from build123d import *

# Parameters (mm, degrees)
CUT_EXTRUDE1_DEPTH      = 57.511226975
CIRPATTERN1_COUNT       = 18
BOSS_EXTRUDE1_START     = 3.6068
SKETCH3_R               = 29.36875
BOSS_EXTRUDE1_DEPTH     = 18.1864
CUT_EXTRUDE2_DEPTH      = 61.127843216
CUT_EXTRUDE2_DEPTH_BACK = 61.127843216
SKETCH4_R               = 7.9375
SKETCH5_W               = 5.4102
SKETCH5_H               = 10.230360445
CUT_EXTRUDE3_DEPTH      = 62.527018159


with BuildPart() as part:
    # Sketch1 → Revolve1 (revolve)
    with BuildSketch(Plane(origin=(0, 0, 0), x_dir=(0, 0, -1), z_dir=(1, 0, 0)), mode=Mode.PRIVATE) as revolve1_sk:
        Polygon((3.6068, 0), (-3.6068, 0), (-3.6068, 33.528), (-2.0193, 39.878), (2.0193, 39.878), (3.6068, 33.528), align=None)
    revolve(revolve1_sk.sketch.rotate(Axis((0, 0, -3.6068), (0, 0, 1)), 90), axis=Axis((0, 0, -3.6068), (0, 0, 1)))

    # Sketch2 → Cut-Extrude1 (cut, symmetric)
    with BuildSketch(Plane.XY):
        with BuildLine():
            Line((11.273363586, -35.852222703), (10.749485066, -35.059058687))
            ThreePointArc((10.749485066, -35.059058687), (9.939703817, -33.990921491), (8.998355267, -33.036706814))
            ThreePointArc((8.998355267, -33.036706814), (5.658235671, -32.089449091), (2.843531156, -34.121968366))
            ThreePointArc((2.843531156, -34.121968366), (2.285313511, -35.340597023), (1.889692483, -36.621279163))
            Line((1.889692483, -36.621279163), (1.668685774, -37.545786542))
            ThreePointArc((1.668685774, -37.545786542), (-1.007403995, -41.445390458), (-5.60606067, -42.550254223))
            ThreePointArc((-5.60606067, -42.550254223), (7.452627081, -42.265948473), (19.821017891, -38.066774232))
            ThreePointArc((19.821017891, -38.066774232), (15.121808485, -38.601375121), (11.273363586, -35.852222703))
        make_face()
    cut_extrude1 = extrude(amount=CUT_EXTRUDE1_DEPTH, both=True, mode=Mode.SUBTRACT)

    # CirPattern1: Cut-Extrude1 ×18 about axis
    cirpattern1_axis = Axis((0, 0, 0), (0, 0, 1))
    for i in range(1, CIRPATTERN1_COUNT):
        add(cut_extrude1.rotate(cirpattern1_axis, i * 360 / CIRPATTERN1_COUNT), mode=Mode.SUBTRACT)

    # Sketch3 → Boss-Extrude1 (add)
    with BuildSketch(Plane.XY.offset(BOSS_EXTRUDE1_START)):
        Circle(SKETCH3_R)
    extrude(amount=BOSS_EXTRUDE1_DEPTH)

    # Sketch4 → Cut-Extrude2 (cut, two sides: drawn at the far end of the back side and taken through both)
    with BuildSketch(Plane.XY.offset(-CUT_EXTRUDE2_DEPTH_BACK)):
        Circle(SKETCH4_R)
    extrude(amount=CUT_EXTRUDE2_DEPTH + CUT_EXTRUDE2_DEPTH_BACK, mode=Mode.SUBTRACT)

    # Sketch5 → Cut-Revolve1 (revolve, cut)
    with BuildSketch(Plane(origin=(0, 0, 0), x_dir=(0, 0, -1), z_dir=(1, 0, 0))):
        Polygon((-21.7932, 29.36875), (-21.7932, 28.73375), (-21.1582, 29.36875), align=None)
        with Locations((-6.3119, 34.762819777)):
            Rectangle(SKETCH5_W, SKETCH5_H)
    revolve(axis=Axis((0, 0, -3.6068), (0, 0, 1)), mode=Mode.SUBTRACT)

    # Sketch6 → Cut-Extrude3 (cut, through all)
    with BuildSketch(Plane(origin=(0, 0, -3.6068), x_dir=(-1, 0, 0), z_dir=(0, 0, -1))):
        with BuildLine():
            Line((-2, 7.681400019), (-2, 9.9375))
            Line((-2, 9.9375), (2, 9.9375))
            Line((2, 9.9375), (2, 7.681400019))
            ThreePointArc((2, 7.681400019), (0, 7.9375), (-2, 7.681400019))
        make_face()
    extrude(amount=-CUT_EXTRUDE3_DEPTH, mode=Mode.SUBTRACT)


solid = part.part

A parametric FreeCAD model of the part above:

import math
import FreeCAD as App
import Part
import Sketcher

V = App.Vector
Q = App.Units.Quantity

doc = App.newDocument("Part")
params = doc.addObject("Spreadsheet::Sheet", "Params")
for row, (alias, value) in enumerate([
    ("sketch1_width", "1.32 in"),
    ("sketch1_height", "0.284 in"),
    ("sketch1_height2", "0.159 in"),
    ("revolution_angle", "360 deg"),
    ("pocket1_length", "115.022454 mm"),
    ("sketch3_diameter", "2.3125 in"),
    ("pad1_length", "0.716 in"),
    ("sketch4_diameter", "0.625 in"),
    ("sketch5_width", "0.025 in"),
    ("sketch5_height", "0.213 in"),
    ("groove_angle", "360 deg"),
    ("sketch6_radius", "0.3125 in"),
], start=1):
    params.set(f"A{row}", alias)
    params.set(f"B{row}", "=" + value)
    params.setAlias(f"B{row}", alias)

body = doc.addObject("PartDesign::Body", "Body")

# Sketch on YZ plane
sketch1 = doc.addObject("Sketcher::SketchObject", "Sketch")
body.addObject(sketch1)
sketch1.AttachmentSupport = (doc.YZ_Plane, [""])
sketch1.MapMode = "FlatFace"
sketch1.addGeometry(Part.LineSegment(V(0, 3.6, 0), V(0, -3.6, 0)), False)
sketch1.addGeometry(Part.LineSegment(V(0, -3.6, 0), V(33.5, -3.6, 0)), False)
sketch1.addGeometry(Part.LineSegment(V(33.5, -3.6, 0), V(39.9, -2, 0)), False)
sketch1.addGeometry(Part.LineSegment(V(39.9, -2, 0), V(39.9, 2, 0)), False)
sketch1.addGeometry(Part.LineSegment(V(39.9, 2, 0), V(33.5, 3.6, 0)), False)
sketch1.addGeometry(Part.LineSegment(V(33.5, 3.6, 0), V(0, 3.6, 0)), False)
sketch1.addConstraint(Sketcher.Constraint("Coincident", 0, 2, 1, 1))
sketch1.addConstraint(Sketcher.Constraint("Coincident", 1, 2, 2, 1))
sketch1.addConstraint(Sketcher.Constraint("Coincident", 2, 2, 3, 1))
sketch1.addConstraint(Sketcher.Constraint("Coincident", 3, 2, 4, 1))
sketch1.addConstraint(Sketcher.Constraint("Coincident", 4, 2, 5, 1))
sketch1.addConstraint(Sketcher.Constraint("Coincident", 5, 2, 0, 1))
sketch1.addConstraint(Sketcher.Constraint("Vertical", 0))
sketch1.addConstraint(Sketcher.Constraint("Horizontal", 1))
sketch1.addConstraint(Sketcher.Constraint("Vertical", 3))
sketch1.addConstraint(Sketcher.Constraint("Horizontal", 5))
sketch1.addConstraint(Sketcher.Constraint("Symmetric", 0, 2, 5, 2, -1, 1))
sketch1.addConstraint(Sketcher.Constraint("Vertical", 1, 2, 4, 2))
sketch1.addConstraint(Sketcher.Constraint("Equal", 2, 4))
sketch1.addConstraint(Sketcher.Constraint("DistanceX", 1, 1, 1, 2, Q("1.32 in")))
sketch1.addConstraint(Sketcher.Constraint("DistanceY", 0, 2, 0, 1, Q("0.284 in")))
sketch1.addConstraint(Sketcher.Constraint("DistanceY", 3, 1, 3, 2, Q("0.159 in")))
sketch1.addConstraint(Sketcher.Constraint("DistanceX", -1, 1, 2, 2, Q("1.57 in")))
sketch1.setExpression("Constraints[13]", "Params.sketch1_width")
sketch1.setExpression("Constraints[14]", "Params.sketch1_height")
sketch1.setExpression("Constraints[15]", "Params.sketch1_height2")
revolution = doc.addObject("PartDesign::Revolution", "Revolution")
body.addObject(revolution)
revolution.Profile = sketch1
revolution.ReferenceAxis = (sketch1, ["V_Axis"])
revolution.setExpression("Angle", "Params.revolution_angle")

# Sketch on XY plane
sketch2 = doc.addObject("Sketcher::SketchObject", "Sketch001")
body.addObject(sketch2)
sketch2.AttachmentSupport = (doc.XY_Plane, [""])
sketch2.MapMode = "FlatFace"
sketch2.addGeometry(Part.LineSegment(V(11.3, -35.9, 0), V(10.7, -35.1, 0)), False)
sketch2.addGeometry(Part.ArcOfCircle(Part.Circle(V(2.1, -40.7, 0), V(0, 0, 1), 10.3), math.radians(33.44), math.radians(48.33)), False)
sketch2.addGeometry(Part.ArcOfCircle(Part.Circle(V(6.3, -36, 0), V(0, 0, 1), 4), math.radians(48), math.radians(152)), False)
sketch2.addGeometry(Part.ArcOfCircle(Part.Circle(V(11.9, -39, 0), V(0, 0, 1), 10.3), math.radians(151.67), math.radians(166.56)), False)
sketch2.addGeometry(Part.LineSegment(V(1.9, -36.6, 0), V(1.7, -37.5, 0)), False)
sketch2.addGeometry(Part.ArcOfCircle(Part.Circle(V(-4.7, -36, 0), V(0, 0, 1), 6.6), math.radians(-98), math.radians(-13)), False)
sketch2.addGeometry(Part.ArcOfCircle(Part.Circle(V(0, 0, 0), V(0, 0, 1), 42.9), math.radians(-98), math.radians(-62)), False)
sketch2.addGeometry(Part.ArcOfCircle(Part.Circle(V(16.8, -32.2, 0), V(0, 0, 1), 6.6), math.radians(-147), math.radians(-62)), False)
sketch2.addConstraint(Sketcher.Constraint("Tangent", 0, 2, 1, 1))
sketch2.addConstraint(Sketcher.Constraint("Tangent", 1, 2, 2, 1))
sketch2.addConstraint(Sketcher.Constraint("Tangent", 2, 2, 3, 1))
sketch2.addConstraint(Sketcher.Constraint("Tangent", 3, 2, 4, 1))
sketch2.addConstraint(Sketcher.Constraint("Tangent", 4, 2, 5, 2))
sketch2.addConstraint(Sketcher.Constraint("Tangent", 5, 1, 6, 1))
sketch2.addConstraint(Sketcher.Constraint("Tangent", 6, 2, 7, 2))
sketch2.addConstraint(Sketcher.Constraint("Tangent", 7, 1, 0, 1))
sketch2.addConstraint(Sketcher.Constraint("Coincident", 6, 3, -1, 1))
sketch2.addConstraint(Sketcher.Constraint("Equal", 1, 3))
sketch2.addConstraint(Sketcher.Constraint("Equal", 5, 7))
sketch2.addConstraint(Sketcher.Constraint("Horizontal", 2, 3, 5, 3))
sketch2.addConstraint(Sketcher.Constraint("Equal", 0, 4))
sketch2.addConstraint(Sketcher.Constraint("DistanceX", -1, 1, 2, 3, Q("0.25 in")))
sketch2.addConstraint(Sketcher.Constraint("Radius", 1, Q("10.323552 mm")))
sketch2.addConstraint(Sketcher.Constraint("Radius", 2, Q("3.983712 mm")))
sketch2.addConstraint(Sketcher.Constraint("Radius", 6, Q("42.917969 mm")))
sketch2.addConstraint(Sketcher.Constraint("DistanceY", 1, 3, 0, 2, Q("0.224 in")))
sketch2.addConstraint(Sketcher.Constraint("DistanceX", 5, 3, -1, 1, Q("0.1868 in")))
sketch2.addConstraint(Sketcher.Constraint("Radius", 5, Q("6.594112 mm")))
sketch2.addConstraint(Sketcher.Constraint("DistanceX", -1, 1, 1, 3, Q("2.135301 mm")))
pocket1 = doc.addObject("PartDesign::Pocket", "Pocket")
body.addObject(pocket1)
pocket1.Profile = sketch2
pocket1.setExpression("Length", "Params.pocket1_length")
pocket1.Midplane = True
doc.recompute()

polarpattern = doc.addObject("PartDesign::PolarPattern", "PolarPattern")
body.addObject(polarpattern)
polarpattern.Originals = [pocket1]
polarpattern.Axis = (doc.Z_Axis, [""])
polarpattern.Angle = 360
polarpattern.Occurrences = 18
body.Tip = polarpattern

# Sketch on XY plane
sketch3 = doc.addObject("Sketcher::SketchObject", "Sketch002")
body.addObject(sketch3)
sketch3.AttachmentSupport = (doc.XY_Plane, [""])
sketch3.MapMode = "FlatFace"
sketch3.AttachmentOffset = App.Placement(V(0, 0, 0.142 * 25.4), App.Rotation())
sketch3.addGeometry(Part.Circle(V(0, 0, 0), V(0, 0, 1), 29), False)
sketch3.addConstraint(Sketcher.Constraint("Coincident", 0, 3, -1, 1))
sketch3.addConstraint(Sketcher.Constraint("Diameter", 0, Q("2.3125 in")))
sketch3.setExpression("Constraints[1]", "Params.sketch3_diameter")
pad1 = doc.addObject("PartDesign::Pad", "Pad")
body.addObject(pad1)
pad1.Profile = sketch3
pad1.setExpression("Length", "Params.pad1_length")

# Sketch on XY plane
sketch4 = doc.addObject("Sketcher::SketchObject", "Sketch003")
body.addObject(sketch4)
sketch4.AttachmentSupport = (doc.XY_Plane, [""])
sketch4.MapMode = "FlatFace"
sketch4.addGeometry(Part.Circle(V(0, 0, 0), V(0, 0, 1), 8), False)
sketch4.addConstraint(Sketcher.Constraint("Coincident", 0, 3, -1, 1))
sketch4.addConstraint(Sketcher.Constraint("Diameter", 0, Q("0.625 in")))
sketch4.setExpression("Constraints[1]", "Params.sketch4_diameter")
pocket2 = doc.addObject("PartDesign::Pocket", "Pocket001")
body.addObject(pocket2)
pocket2.Profile = sketch4
pocket2.Type = "ThroughAll"
pocket2.Midplane = True

# Sketch on YZ plane
sketch5 = doc.addObject("Sketcher::SketchObject", "Sketch004")
body.addObject(sketch5)
sketch5.AttachmentSupport = (doc.YZ_Plane, [""])
sketch5.MapMode = "FlatFace"
sketch5.addGeometry(Part.LineSegment(V(29.4, 21.8, 0), V(28.7, 21.8, 0)), False)
sketch5.addGeometry(Part.LineSegment(V(28.7, 21.8, 0), V(29.4, 21.2, 0)), False)
sketch5.addGeometry(Part.LineSegment(V(29.4, 21.2, 0), V(29.4, 21.8, 0)), False)
sketch5.addGeometry(Part.LineSegment(V(39.9, 9, 0), V(29.6, 9, 0)), False)
sketch5.addGeometry(Part.LineSegment(V(29.6, 9, 0), V(29.6, 3.6, 0)), False)
sketch5.addGeometry(Part.LineSegment(V(29.6, 3.6, 0), V(39.9, 3.6, 0)), False)
sketch5.addGeometry(Part.LineSegment(V(39.9, 3.6, 0), V(39.9, 9, 0)), False)
sketch5.addConstraint(Sketcher.Constraint("Coincident", 0, 2, 1, 1))
sketch5.addConstraint(Sketcher.Constraint("Coincident", 1, 2, 2, 1))
sketch5.addConstraint(Sketcher.Constraint("Coincident", 2, 2, 0, 1))
sketch5.addConstraint(Sketcher.Constraint("Coincident", 3, 2, 4, 1))
sketch5.addConstraint(Sketcher.Constraint("Coincident", 4, 2, 5, 1))
sketch5.addConstraint(Sketcher.Constraint("Coincident", 5, 2, 6, 1))
sketch5.addConstraint(Sketcher.Constraint("Coincident", 6, 2, 3, 1))
sketch5.addConstraint(Sketcher.Constraint("Horizontal", 0))
sketch5.addConstraint(Sketcher.Constraint("Vertical", 2))
sketch5.addConstraint(Sketcher.Constraint("Horizontal", 3))
sketch5.addConstraint(Sketcher.Constraint("Vertical", 4))
sketch5.addConstraint(Sketcher.Constraint("Horizontal", 5))
sketch5.addConstraint(Sketcher.Constraint("Vertical", 6))
sketch5.addConstraint(Sketcher.Constraint("Equal", 0, 2))
sketch5.addConstraint(Sketcher.Constraint("DistanceX", 0, 2, 0, 1, Q("0.025 in")))
sketch5.addConstraint(Sketcher.Constraint("DistanceY", 4, 2, 4, 1, Q("0.213 in")))
sketch5.addConstraint(Sketcher.Constraint("DistanceX", -1, 1, 5, 2, Q("1.57 in")))
sketch5.addConstraint(Sketcher.Constraint("DistanceY", -1, 1, 0, 2, Q("0.858 in")))
sketch5.addConstraint(Sketcher.Constraint("DistanceX", -1, 1, 1, 2, Q("1.15625 in")))
sketch5.addConstraint(Sketcher.Constraint("DistanceY", -1, 1, 3, 2, Q("0.355 in")))
sketch5.addConstraint(Sketcher.Constraint("DistanceX", 3, 2, 3, 1, Q("10.23036 mm")))
sketch5.setExpression("Constraints[14]", "Params.sketch5_width")
sketch5.setExpression("Constraints[15]", "Params.sketch5_height")
groove = doc.addObject("PartDesign::Groove", "Groove")
body.addObject(groove)
groove.Profile = sketch5
groove.ReferenceAxis = (sketch5, ["V_Axis"])
groove.setExpression("Angle", "Params.groove_angle")

# Sketch on XY plane
sketch6 = doc.addObject("Sketcher::SketchObject", "Sketch005")
body.addObject(sketch6)
sketch6.AttachmentSupport = (doc.XY_Plane, [""])
sketch6.MapMode = "FlatFace"
sketch6.AttachmentOffset = App.Placement(V(0, 0, -0.142 * 25.4), App.Rotation())
sketch6.addGeometry(Part.LineSegment(V(2, 9.9, 0), V(2, 7.7, 0)), False)
sketch6.addGeometry(Part.ArcOfCircle(Part.Circle(V(0, 0, 0), V(0, 0, 1), 7.9), math.radians(75), math.radians(105)), False)
sketch6.addGeometry(Part.LineSegment(V(-2, 7.7, 0), V(-2, 9.9, 0)), False)
sketch6.addGeometry(Part.LineSegment(V(-2, 9.9, 0), V(2, 9.9, 0)), False)
sketch6.addConstraint(Sketcher.Constraint("Coincident", 0, 2, 1, 1))
sketch6.addConstraint(Sketcher.Constraint("Coincident", 1, 2, 2, 1))
sketch6.addConstraint(Sketcher.Constraint("Coincident", 2, 2, 3, 1))
sketch6.addConstraint(Sketcher.Constraint("Coincident", 3, 2, 0, 1))
sketch6.addConstraint(Sketcher.Constraint("Vertical", 0))
sketch6.addConstraint(Sketcher.Constraint("Vertical", 2))
sketch6.addConstraint(Sketcher.Constraint("Horizontal", 3))
sketch6.addConstraint(Sketcher.Constraint("Coincident", 1, 3, -1, 1))
sketch6.addConstraint(Sketcher.Constraint("Horizontal", 0, 2, 1, 2))
sketch6.addConstraint(Sketcher.Constraint("Radius", 1, Q("0.3125 in")))
sketch6.addConstraint(Sketcher.Constraint("DistanceX", 3, 1, 3, 2, Q("4 mm")))
sketch6.addConstraint(Sketcher.Constraint("DistanceY", 0, 2, 0, 1, Q("2.2561 mm")))
sketch6.setExpression("Constraints[9]", "Params.sketch6_radius")
pocket3 = doc.addObject("PartDesign::Pocket", "Pocket002")
body.addObject(pocket3)
pocket3.Profile = sketch6
pocket3.Type = "ThroughAll"
pocket3.Reversed = True

doc.recompute()
